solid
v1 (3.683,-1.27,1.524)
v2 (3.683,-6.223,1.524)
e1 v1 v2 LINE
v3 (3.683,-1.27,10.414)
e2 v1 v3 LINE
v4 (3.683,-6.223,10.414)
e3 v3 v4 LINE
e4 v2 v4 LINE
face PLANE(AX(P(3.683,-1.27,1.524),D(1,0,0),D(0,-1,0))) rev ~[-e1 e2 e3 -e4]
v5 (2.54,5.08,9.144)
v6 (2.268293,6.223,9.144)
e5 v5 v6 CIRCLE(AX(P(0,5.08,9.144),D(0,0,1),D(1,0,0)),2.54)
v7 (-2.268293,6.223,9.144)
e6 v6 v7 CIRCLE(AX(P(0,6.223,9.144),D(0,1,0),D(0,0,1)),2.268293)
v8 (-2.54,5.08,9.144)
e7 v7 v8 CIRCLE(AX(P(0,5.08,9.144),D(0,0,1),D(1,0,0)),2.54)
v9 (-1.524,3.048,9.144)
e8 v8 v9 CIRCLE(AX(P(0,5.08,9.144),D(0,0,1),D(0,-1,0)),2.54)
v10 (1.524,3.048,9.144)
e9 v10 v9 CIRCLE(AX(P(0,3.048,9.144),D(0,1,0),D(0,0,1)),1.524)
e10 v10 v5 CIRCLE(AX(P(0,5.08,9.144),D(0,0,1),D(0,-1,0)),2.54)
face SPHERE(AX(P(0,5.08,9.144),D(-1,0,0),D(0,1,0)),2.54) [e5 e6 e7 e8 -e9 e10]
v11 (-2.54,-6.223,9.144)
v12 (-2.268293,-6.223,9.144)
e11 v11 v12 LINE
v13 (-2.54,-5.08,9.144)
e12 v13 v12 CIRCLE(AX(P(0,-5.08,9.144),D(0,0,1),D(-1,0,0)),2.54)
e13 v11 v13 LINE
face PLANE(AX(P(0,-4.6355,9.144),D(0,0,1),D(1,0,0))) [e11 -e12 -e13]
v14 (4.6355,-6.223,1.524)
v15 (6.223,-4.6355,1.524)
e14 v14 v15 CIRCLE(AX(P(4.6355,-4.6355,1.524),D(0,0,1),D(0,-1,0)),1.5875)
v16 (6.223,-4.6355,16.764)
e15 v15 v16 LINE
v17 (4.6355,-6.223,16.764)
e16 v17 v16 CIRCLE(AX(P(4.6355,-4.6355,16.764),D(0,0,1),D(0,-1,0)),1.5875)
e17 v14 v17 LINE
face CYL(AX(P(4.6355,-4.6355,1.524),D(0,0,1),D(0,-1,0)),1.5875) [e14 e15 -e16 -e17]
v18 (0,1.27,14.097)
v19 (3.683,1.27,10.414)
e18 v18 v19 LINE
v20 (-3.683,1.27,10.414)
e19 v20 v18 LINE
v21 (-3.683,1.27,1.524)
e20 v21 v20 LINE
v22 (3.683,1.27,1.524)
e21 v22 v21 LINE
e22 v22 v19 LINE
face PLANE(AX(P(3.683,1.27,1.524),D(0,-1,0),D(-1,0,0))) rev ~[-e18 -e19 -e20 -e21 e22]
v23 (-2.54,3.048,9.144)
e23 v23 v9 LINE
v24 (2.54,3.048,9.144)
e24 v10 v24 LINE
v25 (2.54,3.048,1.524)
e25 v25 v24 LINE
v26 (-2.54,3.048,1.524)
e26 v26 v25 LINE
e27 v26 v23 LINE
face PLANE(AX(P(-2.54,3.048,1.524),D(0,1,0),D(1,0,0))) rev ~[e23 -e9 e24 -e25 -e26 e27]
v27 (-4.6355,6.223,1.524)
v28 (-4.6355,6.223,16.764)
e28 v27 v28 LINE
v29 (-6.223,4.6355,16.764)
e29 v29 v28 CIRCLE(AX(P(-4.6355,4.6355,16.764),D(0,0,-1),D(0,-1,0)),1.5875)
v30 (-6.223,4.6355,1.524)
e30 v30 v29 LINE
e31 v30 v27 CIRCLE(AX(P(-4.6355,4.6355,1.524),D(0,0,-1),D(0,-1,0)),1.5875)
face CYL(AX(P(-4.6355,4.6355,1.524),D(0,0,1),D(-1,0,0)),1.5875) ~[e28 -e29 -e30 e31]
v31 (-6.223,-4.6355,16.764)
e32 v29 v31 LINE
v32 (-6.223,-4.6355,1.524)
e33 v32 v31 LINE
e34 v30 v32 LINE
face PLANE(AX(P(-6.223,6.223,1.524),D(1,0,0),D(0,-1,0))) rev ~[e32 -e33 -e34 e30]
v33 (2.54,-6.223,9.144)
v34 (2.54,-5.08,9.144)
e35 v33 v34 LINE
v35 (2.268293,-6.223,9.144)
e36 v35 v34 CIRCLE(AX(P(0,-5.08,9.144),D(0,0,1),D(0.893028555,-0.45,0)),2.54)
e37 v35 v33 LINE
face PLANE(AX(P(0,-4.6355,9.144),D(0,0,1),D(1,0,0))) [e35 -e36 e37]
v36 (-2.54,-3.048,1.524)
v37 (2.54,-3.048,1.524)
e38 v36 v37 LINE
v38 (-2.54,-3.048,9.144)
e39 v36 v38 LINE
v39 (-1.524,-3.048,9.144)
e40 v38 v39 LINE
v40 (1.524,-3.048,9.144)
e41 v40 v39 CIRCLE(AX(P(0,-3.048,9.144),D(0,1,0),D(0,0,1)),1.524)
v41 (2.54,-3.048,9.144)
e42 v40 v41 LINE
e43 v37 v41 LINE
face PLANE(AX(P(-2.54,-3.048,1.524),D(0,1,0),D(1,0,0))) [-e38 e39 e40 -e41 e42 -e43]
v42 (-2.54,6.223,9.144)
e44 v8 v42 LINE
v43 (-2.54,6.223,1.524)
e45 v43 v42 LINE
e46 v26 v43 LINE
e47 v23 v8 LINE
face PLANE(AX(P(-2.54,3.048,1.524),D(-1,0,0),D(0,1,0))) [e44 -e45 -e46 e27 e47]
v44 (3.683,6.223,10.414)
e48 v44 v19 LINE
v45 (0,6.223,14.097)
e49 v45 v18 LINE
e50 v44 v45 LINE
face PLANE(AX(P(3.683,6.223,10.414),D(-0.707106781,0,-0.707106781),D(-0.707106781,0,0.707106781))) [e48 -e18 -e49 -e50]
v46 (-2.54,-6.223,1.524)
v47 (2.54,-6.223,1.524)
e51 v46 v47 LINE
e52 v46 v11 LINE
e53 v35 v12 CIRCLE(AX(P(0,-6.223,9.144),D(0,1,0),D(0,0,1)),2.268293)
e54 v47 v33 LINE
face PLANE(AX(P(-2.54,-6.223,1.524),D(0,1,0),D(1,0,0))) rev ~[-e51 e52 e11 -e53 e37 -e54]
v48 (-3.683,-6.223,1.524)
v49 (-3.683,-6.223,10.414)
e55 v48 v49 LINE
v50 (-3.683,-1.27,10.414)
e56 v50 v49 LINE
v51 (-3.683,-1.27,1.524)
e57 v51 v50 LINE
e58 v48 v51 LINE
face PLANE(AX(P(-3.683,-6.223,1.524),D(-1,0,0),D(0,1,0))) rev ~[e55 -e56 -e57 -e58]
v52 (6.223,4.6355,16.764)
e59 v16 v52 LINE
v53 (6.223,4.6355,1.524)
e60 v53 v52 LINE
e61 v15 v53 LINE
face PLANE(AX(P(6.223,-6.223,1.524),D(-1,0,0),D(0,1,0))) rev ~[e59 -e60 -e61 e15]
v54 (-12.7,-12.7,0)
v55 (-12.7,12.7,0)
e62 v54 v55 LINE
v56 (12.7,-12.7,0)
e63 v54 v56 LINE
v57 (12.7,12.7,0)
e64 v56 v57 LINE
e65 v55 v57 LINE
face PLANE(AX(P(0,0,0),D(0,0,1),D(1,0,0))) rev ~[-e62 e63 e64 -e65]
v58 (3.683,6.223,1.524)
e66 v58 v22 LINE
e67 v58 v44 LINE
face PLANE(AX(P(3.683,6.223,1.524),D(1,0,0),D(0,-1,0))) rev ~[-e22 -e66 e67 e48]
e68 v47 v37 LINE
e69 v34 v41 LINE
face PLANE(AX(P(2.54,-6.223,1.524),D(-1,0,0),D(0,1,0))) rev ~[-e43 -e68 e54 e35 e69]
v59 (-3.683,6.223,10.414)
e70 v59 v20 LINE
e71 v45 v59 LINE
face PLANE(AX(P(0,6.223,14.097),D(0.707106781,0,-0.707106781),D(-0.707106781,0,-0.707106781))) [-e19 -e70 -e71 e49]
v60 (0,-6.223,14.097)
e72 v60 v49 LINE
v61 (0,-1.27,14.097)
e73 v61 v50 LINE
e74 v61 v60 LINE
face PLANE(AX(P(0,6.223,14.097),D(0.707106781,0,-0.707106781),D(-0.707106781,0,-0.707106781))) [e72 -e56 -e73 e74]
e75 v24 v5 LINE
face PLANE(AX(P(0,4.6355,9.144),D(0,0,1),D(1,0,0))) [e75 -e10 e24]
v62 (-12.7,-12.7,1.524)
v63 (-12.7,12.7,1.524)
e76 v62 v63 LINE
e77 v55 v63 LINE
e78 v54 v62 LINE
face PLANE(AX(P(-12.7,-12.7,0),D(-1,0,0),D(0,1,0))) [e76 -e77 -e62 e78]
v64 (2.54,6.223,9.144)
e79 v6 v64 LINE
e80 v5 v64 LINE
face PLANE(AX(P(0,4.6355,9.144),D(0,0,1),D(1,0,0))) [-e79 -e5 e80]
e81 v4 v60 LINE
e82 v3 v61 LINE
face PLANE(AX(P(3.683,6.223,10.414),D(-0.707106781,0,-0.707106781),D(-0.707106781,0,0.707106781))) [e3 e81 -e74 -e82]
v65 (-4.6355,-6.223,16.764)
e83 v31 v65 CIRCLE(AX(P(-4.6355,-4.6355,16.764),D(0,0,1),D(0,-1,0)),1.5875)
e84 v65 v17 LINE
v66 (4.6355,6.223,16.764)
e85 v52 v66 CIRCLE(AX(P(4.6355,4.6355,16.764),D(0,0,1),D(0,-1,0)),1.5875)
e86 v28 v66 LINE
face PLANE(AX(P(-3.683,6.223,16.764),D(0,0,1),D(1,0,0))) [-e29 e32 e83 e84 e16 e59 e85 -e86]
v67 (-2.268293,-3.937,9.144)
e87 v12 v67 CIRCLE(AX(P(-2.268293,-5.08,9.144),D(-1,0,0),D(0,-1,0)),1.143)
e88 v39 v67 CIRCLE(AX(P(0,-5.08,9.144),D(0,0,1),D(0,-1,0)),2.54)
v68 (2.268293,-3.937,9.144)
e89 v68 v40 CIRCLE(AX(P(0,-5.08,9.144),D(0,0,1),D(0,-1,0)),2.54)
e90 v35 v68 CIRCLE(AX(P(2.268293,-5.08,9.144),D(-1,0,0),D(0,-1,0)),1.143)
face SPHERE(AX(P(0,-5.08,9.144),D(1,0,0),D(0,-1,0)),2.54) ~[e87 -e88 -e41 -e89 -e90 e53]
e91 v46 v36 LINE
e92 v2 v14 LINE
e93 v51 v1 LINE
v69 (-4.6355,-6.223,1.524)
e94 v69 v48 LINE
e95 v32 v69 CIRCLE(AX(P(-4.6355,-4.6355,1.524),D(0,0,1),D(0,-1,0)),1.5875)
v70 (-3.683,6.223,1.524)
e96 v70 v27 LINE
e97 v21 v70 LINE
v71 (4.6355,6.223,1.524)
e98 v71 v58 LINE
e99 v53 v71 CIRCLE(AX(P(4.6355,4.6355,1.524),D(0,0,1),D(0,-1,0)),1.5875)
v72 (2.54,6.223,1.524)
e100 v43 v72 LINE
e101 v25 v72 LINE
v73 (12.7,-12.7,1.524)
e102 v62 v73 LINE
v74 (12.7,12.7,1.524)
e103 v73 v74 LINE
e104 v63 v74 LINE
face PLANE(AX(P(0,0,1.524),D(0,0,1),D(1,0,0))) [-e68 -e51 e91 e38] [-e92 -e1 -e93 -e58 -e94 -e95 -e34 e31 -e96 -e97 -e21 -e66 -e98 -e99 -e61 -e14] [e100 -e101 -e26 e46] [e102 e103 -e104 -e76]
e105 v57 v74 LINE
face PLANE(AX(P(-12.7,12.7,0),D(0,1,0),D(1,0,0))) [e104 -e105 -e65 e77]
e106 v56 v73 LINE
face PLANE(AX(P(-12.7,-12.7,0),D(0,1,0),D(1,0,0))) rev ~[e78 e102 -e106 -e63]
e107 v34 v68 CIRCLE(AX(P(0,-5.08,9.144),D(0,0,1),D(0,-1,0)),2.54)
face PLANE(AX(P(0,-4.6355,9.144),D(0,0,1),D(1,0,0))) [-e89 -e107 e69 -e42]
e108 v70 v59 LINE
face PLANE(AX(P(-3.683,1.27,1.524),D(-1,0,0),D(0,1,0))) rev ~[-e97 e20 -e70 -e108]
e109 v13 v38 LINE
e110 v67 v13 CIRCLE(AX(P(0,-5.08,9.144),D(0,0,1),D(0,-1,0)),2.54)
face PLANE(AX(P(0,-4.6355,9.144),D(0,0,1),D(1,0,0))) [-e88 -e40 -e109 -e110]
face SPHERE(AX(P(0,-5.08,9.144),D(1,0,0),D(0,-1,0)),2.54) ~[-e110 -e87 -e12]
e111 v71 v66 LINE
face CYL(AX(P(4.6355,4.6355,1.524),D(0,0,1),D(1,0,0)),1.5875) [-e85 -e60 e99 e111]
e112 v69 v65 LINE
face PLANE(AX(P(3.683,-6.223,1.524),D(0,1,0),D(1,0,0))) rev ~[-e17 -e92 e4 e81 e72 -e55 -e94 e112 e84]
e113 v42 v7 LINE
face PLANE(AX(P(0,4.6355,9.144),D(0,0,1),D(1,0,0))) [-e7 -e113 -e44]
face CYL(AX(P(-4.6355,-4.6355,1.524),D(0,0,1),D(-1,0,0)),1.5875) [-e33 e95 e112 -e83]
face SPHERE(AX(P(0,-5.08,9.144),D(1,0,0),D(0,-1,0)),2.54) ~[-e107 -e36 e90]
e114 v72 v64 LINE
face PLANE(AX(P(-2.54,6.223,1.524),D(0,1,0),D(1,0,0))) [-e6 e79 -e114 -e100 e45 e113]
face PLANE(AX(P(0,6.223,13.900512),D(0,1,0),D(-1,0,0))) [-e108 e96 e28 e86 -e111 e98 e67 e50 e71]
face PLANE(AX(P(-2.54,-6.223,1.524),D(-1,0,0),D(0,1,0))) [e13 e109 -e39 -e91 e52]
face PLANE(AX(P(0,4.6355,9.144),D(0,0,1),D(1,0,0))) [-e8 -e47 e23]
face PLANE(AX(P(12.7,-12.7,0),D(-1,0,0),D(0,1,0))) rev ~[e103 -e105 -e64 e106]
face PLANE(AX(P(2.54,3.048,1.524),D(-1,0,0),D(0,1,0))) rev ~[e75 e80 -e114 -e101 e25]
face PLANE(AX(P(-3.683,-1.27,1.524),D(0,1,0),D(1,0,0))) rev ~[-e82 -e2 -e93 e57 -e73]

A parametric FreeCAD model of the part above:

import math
import FreeCAD as App
import Part
import Sketcher

V = App.Vector
Q = App.Units.Quantity


def edges_at(feature, points):
    """Names of the edges that pass closest to the given points."""
    edges = feature.Shape.Edges
    near = lambda p: min(range(len(edges)), key=lambda i: edges[i].distToShape(Part.Vertex(*p))[0])
    return sorted({f"Edge{near(p) + 1}" for p in points})

doc = App.newDocument("Part")
body = doc.addObject("PartDesign::Body", "Body")

# Sketch on XY plane
sketch1 = doc.addObject("Sketcher::SketchObject", "Sketch")
body.addObject(sketch1)
sketch1.AttachmentSupport = (doc.XY_Plane, [""])
sketch1.MapMode = "FlatFace"
sketch1.addGeometry([
    Part.LineSegment(V(-13, 13, 0), V(-13, -13, 0)),
    Part.LineSegment(V(-13, -13, 0), V(13, -13, 0)),
    Part.LineSegment(V(13, -13, 0), V(13, 13, 0)),
    Part.LineSegment(V(13, 13, 0), V(-13, 13, 0)),
], False)
sketch1.addConstraint([
    Sketcher.Constraint("Coincident", 0, 2, 1, 1),
    Sketcher.Constraint("Coincident", 1, 2, 2, 1),
    Sketcher.Constraint("Coincident", 2, 2, 3, 1),
    Sketcher.Constraint("Coincident", 3, 2, 0, 1),
    Sketcher.Constraint("Vertical", 0),
    Sketcher.Constraint("Horizontal", 1),
    Sketcher.Constraint("Vertical", 2),
    Sketcher.Constraint("Horizontal", 3),
    Sketcher.Constraint("Symmetric", 0, 2, 2, 2, -1, 1),
    Sketcher.Constraint("Equal", 3, 0),
    Sketcher.Constraint("DistanceX", 1, 1, 1, 2, Q("1 in")),
])
pad1 = doc.addObject("PartDesign::Pad", "Pad")
body.addObject(pad1)
pad1.Profile = sketch1
pad1.Length = Q("0.06 in")

# Sketch on XY plane
sketch2 = doc.addObject("Sketcher::SketchObject", "Sketch001")
body.addObject(sketch2)
sketch2.AttachmentSupport = (doc.XY_Plane, [""])
sketch2.MapMode = "FlatFace"
sketch2.AttachmentOffset = App.Placement(V(0, 0, 0.06 * 25.4), App.Rotation())
sketch2.addGeometry([
    Part.LineSegment(V(6.2, -6.2, 0), V(6.2, 6.2, 0)),  # 0
    Part.LineSegment(V(6.2, 6.2, 0), V(3.7, 6.2, 0)),  # 1
    Part.LineSegment(V(3.7, 6.2, 0), V(3.7, 1.3, 0)),  # 2
    Part.LineSegment(V(3.7, 1.3, 0), V(-3.7, 1.3, 0)),  # 3
    Part.LineSegment(V(-3.7, 1.3, 0), V(-3.7, 6.2, 0)),  # 4
    Part.LineSegment(V(-3.7, 6.2, 0), V(-6.2, 6.2, 0)),  # 5
    Part.LineSegment(V(-6.2, 6.2, 0), V(-6.2, -6.2, 0)),  # 6
    Part.LineSegment(V(-6.2, -6.2, 0), V(-3.7, -6.2, 0)),  # 7
    Part.LineSegment(V(-3.7, -6.2, 0), V(-3.7, -1.3, 0)),  # 8
    Part.LineSegment(V(-3.7, -1.3, 0), V(3.7, -1.3, 0)),  # 9
    Part.LineSegment(V(3.7, -1.3, 0), V(3.7, -6.2, 0)),  # 10
    Part.LineSegment(V(3.7, -6.2, 0), V(6.2, -6.2, 0)),  # 11
], False)
sketch2.addConstraint([
    Sketcher.Constraint("Coincident", 0, 2, 1, 1),
    Sketcher.Constraint("Coincident", 1, 2, 2, 1),
    Sketcher.Constraint("Coincident", 2, 2, 3, 1),
    Sketcher.Constraint("Coincident", 3, 2, 4, 1),
    Sketcher.Constraint("Coincident", 4, 2, 5, 1),
    Sketcher.Constraint("Coincident", 5, 2, 6, 1),
    Sketcher.Constraint("Coincident", 6, 2, 7, 1),
    Sketcher.Constraint("Coincident", 7, 2, 8, 1),
    Sketcher.Constraint("Coincident", 8, 2, 9, 1),
    Sketcher.Constraint("Coincident", 9, 2, 10, 1),
    Sketcher.Constraint("Coincident", 10, 2, 11, 1),
    Sketcher.Constraint("Coincident", 11, 2, 0, 1),
    Sketcher.Constraint("Vertical", 0),
    Sketcher.Constraint("Horizontal", 1),
    Sketcher.Constraint("Vertical", 2),
    Sketcher.Constraint("Horizontal", 3),
    Sketcher.Constraint("Vertical", 4),
    Sketcher.Constraint("Horizontal", 5),
    Sketcher.Constraint("Vertical", 6),
    Sketcher.Constraint("Horizontal", 7),
    Sketcher.Constraint("Vertical", 8),
    Sketcher.Constraint("Horizontal", 9),
    Sketcher.Constraint("Vertical", 10),
    Sketcher.Constraint("Horizontal", 11),
    Sketcher.Constraint("Symmetric", 0, 2, 6, 2, -1, 1),
    Sketcher.Constraint("Symmetric", 2, 2, 8, 2, -1, 1),
    Sketcher.Constraint("Symmetric", 4, 2, 10, 2, -1, 1),
    Sketcher.Constraint("Symmetric", 1, 2, 4, 2, -2),
    Sketcher.Constraint("DistanceX", 1, 2, 1, 1, Q("0.1 in")),
    Sketcher.Constraint("DistanceX", 3, 2, 3, 1, Q("0.29 in")),
    Sketcher.Constraint("DistanceY", 0, 1, 0, 2, Q("0.49 in")),
    Sketcher.Constraint("DistanceY", 8, 2, 3, 2, Q("0.1 in")),
])
pad2 = doc.addObject("PartDesign::Pad", "Pad001")
body.addObject(pad2)
pad2.Profile = sketch2
pad2.Length = Q("0.6 in")

# Sketch on XY plane
sketch3 = doc.addObject("Sketcher::SketchObject", "Sketch002")
body.addObject(sketch3)
sketch3.AttachmentSupport = (doc.XY_Plane, [""])
sketch3.MapMode = "FlatFace"
sketch3.AttachmentOffset = App.Placement(V(0, 0, 0.06 * 25.4), App.Rotation())
sketch3.addGeometry([
    Part.LineSegment(V(-2.5, -3, 0), V(-2.5, -6.2, 0)),  # 0
    Part.LineSegment(V(-2.5, -6.2, 0), V(2.5, -6.2, 0)),  # 1
    Part.LineSegment(V(2.5, -6.2, 0), V(2.5, -3, 0)),  # 2
    Part.LineSegment(V(2.5, -3, 0), V(-2.5, -3, 0)),  # 3
    Part.LineSegment(V(-2.5, 6.2, 0), V(-2.5, 3, 0)),  # 4
    Part.LineSegment(V(-2.5, 3, 0), V(2.5, 3, 0)),  # 5
    Part.LineSegment(V(2.5, 3, 0), V(2.5, 6.2, 0)),  # 6
    Part.LineSegment(V(2.5, 6.2, 0), V(-2.5, 6.2, 0)),  # 7
], False)
sketch3.addConstraint([
    Sketcher.Constraint("Coincident", 0, 2, 1, 1),
    Sketcher.Constraint("Coincident", 1, 2, 2, 1),
    Sketcher.Constraint("Coincident", 2, 2, 3, 1),
    Sketcher.Constraint("Coincident", 3, 2, 0, 1),
    Sketcher.Constraint("Coincident", 4, 2, 5, 1),
    Sketcher.Constraint("Coincident", 5, 2, 6, 1),
    Sketcher.Constraint("Coincident", 6, 2, 7, 1),
    Sketcher.Constraint("Coincident", 7, 2, 4, 1),
    Sketcher.Constraint("Vertical", 0),
    Sketcher.Constraint("Horizontal", 1),
    Sketcher.Constraint("Vertical", 2),
    Sketcher.Constraint("Horizontal", 3),
    Sketcher.Constraint("Vertical", 4),
    Sketcher.Constraint("Horizontal", 5),
    Sketcher.Constraint("Vertical", 6),
    Sketcher.Constraint("Horizontal", 7),
    Sketcher.Constraint("Symmetric", 2, 2, 4, 2, -1, 1),
    Sketcher.Constraint("Symmetric", 0, 2, 6, 2, -1, 1),
    Sketcher.Constraint("Vertical", 3, 2, 4, 2),
    Sketcher.Constraint("DistanceX", 1, 1, 1, 2, Q("0.2 in")),
    Sketcher.Constraint("DistanceY", 0, 2, 0, 1, Q("0.125 in")),
    Sketcher.Constraint("DistanceY", 2, 2, -1, 1, Q("0.12 in")),
])
pad3 = doc.addObject("PartDesign::Pad", "Pad002")
body.addObject(pad3)
pad3.Profile = sketch3
pad3.Length = Q("0.3 in")

# Sketch on XY plane
sketch4 = doc.addObject("Sketcher::SketchObject", "Sketch003")
body.addObject(sketch4)
sketch4.AttachmentSupport = (doc.XY_Plane, [""])
sketch4.MapMode = "FlatFace"
sketch4.AttachmentOffset = App.Placement(V(0, 0, 0.36 * 25.4), App.Rotation())
sketch4.addGeometry([
    Part.LineSegment(V(-2.5, 5.1, 0), V(2.5, 5.1, 0)),
    Part.ArcOfCircle(Part.Circle(V(0, 5.1, 0), V(0, 0, 1), 2.5), math.radians(0), math.radians(180)),
], False)
sketch4.addGeometry(Part.LineSegment(V(2.5, 5.1, 0), V(-2.5, 5.1, 0)), True)  # axis
sketch4.addConstraint([
    Sketcher.Constraint("Coincident", 0, 1, 1, 2),
    Sketcher.Constraint("Coincident", 1, 1, 0, 2),
    Sketcher.Constraint("Horizontal", 0),
    Sketcher.Constraint("Horizontal", 2),
    Sketcher.Constraint("Coincident", 2, 1, 1, 1),
    Sketcher.Constraint("PointOnObject", 1, 3, -2),
    Sketcher.Constraint("Horizontal", 1, 3, 0, 1),
    Sketcher.Constraint("Equal", 0, 2),
    Sketcher.Constraint("Radius", 1, Q("0.1 in")),
    Sketcher.Constraint("DistanceY", -1, 1, 1, 3, Q("0.2 in")),
])
revolution = doc.addObject("PartDesign::Revolution", "Revolution")
body.addObject(revolution)
revolution.Profile = sketch4
revolution.ReferenceAxis = (sketch4, ["Axis0"])
revolution.Angle = 360

# Sketch on XY plane
sketch5 = doc.addObject("Sketcher::SketchObject", "Sketch004")
body.addObject(sketch5)
sketch5.AttachmentSupport = (doc.XY_Plane, [""])
sketch5.MapMode = "FlatFace"
sketch5.AttachmentOffset = App.Placement(V(0, 0, 0.36 * 25.4), App.Rotation())
sketch5.addGeometry([
    Part.ArcOfCircle(Part.Circle(V(0, -5.1, 0), V(0, 0, 1), 2.5), math.radians(-153), math.radians(-27)),
    Part.ArcOfCircle(Part.Circle(V(0, -5.1, 0), V(0, 0, 1), 2.5), math.radians(-27), math.radians(0)),
    Part.LineSegment(V(2.5, -5.1, 0), V(-2.5, -5.1, 0)),
    Part.ArcOfCircle(Part.Circle(V(0, -5.1, 0), V(0, 0, 1), 2.5), math.radians(180), math.radians(207)),
], False)
sketch5.addGeometry(Part.LineSegment(V(2.5, -5.1, 0), V(-2.5, -5.1, 0)), True)  # axis
sketch5.addConstraint([
    Sketcher.Constraint("Tangent", 0, 2, 1, 1),
    Sketcher.Constraint("Coincident", 1, 2, 2, 1),
    Sketcher.Constraint("Coincident", 2, 2, 3, 1),
    Sketcher.Constraint("Tangent", 3, 2, 0, 1),
    Sketcher.Constraint("Horizontal", 2),
    Sketcher.Constraint("Horizontal", 4),
    Sketcher.Constraint("Coincident", 4, 1, 1, 2),
    Sketcher.Constraint("Equal", 0, 1),
    Sketcher.Constraint("Equal", 1, 3),
    Sketcher.Constraint("Symmetric", 0, 2, 3, 2, -2),
    Sketcher.Constraint("Horizontal", 3, 3, 1, 2),
    Sketcher.Constraint("Equal", 2, 4),
    Sketcher.Constraint("Radius", 0, Q("0.1 in")),
    Sketcher.Constraint("DistanceY", 0, 3, -1, 1, Q("0.2 in")),
    Sketcher.Constraint("DistanceY", 0, 2, -1, 1, Q("0.245 in")),
])
revolution2 = doc.addObject("PartDesign::Revolution", "Revolution001")
body.addObject(revolution2)
revolution2.Profile = sketch5
revolution2.ReferenceAxis = (sketch5, ["Axis0"])
revolution2.Angle = 360

# Sketch on XZ plane
sketch6 = doc.addObject("Sketcher::SketchObject", "Sketch005")
body.addObject(sketch6)
sketch6.AttachmentSupport = (doc.XZ_Plane, [""])
sketch6.MapMode = "FlatFace"
sketch6.AttachmentOffset = App.Placement(V(0, 0, -0.245 * 25.4), App.Rotation())
sketch6.addGeometry([
    Part.LineSegment(V(4, 17, 0), V(4, 10, 0)),  # 0
    Part.LineSegment(V(4, 10, 0), V(0, 14, 0)),  # 1
    Part.LineSegment(V(0, 14, 0), V(-4, 10, 0)),  # 2
    Part.LineSegment(V(-4, 10, 0), V(-4, 17, 0)),  # 3
    Part.LineSegment(V(-4, 17, 0), V(4, 17, 0)),  # 4
], False)
sketch6.addConstraint([
    Sketcher.Constraint("Coincident", 0, 2, 1, 1),
    Sketcher.Constraint("Coincident", 1, 2, 2, 1),
    Sketcher.Constraint("Coincident", 2, 2, 3, 1),
    Sketcher.Constraint("Coincident", 3, 2, 4, 1),
    Sketcher.Constraint("Coincident", 4, 2, 0, 1),
    Sketcher.Constraint("Vertical", 0),
    Sketcher.Constraint("Vertical", 3),
    Sketcher.Constraint("Horizontal", 4),
    Sketcher.Constraint("Symmetric", 0, 2, 2, 2, -2),
    Sketcher.Constraint("PointOnObject", 1, 2, -2),
    Sketcher.Constraint("Perpendicular", 1, 2),
    Sketcher.Constraint("DistanceX", 4, 1, 4, 2, Q("0.29 in")),
    Sketcher.Constraint("DistanceY", 0, 2, 0, 1, Q("0.25 in")),
    Sketcher.Constraint("DistanceY", -1, 1, 0, 2, Q("0.41 in")),
])
pad4 = doc.addObject("PartDesign::Pad", "Pad003")
body.addObject(pad4)
pad4.Profile = sketch6
pad4.Length = Q("0.49 in")
doc.recompute()

fillet = doc.addObject("PartDesign::Fillet", "Fillet")
body.addObject(fillet)
fillet.Base = (pad4, edges_at(pad4, [
    (-6.223, -6.223, 9.144),
    (-6.223, 6.223, 9.144),
    (6.223, 6.223, 9.144),
    (6.223, -6.223, 9.144),
]))
fillet.Radius = Q("0.0625 in")

doc.recompute()
